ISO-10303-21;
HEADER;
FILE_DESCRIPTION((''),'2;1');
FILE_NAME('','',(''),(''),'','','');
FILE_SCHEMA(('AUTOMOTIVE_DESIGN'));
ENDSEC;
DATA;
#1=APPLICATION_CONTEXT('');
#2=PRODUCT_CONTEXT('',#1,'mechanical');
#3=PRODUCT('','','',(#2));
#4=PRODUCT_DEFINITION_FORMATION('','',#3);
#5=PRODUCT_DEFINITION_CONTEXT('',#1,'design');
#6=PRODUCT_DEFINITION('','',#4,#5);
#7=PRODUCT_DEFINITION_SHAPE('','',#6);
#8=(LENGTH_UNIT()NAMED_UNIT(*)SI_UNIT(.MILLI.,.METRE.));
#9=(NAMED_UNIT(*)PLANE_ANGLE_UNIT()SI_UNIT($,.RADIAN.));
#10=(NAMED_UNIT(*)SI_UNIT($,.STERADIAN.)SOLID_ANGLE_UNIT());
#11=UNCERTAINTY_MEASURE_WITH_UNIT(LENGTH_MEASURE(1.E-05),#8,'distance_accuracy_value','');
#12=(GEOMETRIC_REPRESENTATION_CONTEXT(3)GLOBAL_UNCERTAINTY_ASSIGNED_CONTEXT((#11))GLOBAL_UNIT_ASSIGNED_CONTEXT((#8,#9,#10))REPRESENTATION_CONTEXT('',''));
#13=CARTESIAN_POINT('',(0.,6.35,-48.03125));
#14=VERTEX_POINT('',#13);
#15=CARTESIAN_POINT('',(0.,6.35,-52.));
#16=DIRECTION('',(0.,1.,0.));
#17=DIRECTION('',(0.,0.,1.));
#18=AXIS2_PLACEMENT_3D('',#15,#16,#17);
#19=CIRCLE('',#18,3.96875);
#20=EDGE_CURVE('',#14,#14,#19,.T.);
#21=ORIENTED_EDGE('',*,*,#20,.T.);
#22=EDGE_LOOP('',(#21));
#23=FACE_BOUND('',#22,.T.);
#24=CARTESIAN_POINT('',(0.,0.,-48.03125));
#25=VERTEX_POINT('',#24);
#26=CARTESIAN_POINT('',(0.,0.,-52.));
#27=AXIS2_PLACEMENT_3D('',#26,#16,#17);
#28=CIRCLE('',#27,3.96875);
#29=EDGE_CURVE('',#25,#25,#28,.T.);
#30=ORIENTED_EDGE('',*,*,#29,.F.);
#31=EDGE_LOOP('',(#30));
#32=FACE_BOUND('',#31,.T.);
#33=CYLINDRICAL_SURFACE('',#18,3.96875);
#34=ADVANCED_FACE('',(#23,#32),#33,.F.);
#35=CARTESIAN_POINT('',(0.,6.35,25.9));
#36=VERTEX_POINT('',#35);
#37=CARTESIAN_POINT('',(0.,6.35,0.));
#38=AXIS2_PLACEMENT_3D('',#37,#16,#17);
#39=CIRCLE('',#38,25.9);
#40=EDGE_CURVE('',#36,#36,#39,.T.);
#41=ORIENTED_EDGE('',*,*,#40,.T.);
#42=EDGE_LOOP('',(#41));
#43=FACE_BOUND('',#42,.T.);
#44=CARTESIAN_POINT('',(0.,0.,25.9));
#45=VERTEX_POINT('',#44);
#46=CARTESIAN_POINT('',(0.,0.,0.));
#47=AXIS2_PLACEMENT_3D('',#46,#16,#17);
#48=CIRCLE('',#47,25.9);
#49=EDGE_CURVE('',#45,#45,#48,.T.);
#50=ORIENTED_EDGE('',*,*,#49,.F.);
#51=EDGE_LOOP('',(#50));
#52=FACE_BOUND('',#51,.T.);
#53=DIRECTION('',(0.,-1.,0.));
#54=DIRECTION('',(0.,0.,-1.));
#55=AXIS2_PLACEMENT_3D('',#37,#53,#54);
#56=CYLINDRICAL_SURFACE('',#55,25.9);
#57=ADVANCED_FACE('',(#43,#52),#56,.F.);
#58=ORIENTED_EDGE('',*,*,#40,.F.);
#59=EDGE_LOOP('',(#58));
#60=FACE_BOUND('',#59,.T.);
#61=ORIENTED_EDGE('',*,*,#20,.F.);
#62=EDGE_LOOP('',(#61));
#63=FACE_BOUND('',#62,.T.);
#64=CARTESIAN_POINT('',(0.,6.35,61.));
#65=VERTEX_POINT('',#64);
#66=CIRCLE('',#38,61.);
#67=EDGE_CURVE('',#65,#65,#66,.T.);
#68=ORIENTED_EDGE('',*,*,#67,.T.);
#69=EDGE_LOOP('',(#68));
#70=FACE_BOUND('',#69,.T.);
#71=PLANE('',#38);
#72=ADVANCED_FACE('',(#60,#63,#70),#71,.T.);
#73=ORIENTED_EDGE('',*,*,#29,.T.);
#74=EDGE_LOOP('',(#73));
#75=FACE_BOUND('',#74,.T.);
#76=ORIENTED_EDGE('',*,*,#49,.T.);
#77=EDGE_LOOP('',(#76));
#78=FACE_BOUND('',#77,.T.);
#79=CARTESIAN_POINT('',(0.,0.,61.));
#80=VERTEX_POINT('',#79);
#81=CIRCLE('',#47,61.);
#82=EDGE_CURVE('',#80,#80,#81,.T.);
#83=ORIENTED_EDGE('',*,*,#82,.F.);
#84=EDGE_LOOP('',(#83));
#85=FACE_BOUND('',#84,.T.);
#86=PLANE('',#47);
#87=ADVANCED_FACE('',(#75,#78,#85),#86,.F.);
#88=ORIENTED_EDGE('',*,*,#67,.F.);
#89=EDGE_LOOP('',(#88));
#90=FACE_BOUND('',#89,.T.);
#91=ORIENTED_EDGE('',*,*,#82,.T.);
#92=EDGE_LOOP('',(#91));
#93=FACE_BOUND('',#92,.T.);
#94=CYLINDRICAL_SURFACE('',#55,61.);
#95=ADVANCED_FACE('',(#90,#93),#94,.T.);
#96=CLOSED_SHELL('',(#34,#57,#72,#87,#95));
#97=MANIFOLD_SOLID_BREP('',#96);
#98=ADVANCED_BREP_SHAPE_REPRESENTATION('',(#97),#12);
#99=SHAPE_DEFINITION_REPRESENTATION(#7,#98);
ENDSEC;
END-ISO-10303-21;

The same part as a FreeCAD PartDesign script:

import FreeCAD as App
import Part
import Sketcher

doc = App.newDocument("Part")
body = doc.addObject("PartDesign::Body", "Body")

sketch1 = body.newObject("Sketcher::SketchObject", "Sketch")
sketch1.AttachmentSupport = (doc.getObject("XZ_Plane"), [""])
sketch1.MapMode = "FlatFace"
sketch1.addGeometry(Part.Circle(App.Vector(0, 0, 0), App.Vector(0, 0, 1), 61), False)
sketch1.addGeometry(Part.Circle(App.Vector(0, 0, 0), App.Vector(0, 0, 1), 26), False)
sketch1.addConstraint(Sketcher.Constraint("Coincident", 0, 3, -1, 1))
sketch1.addConstraint(Sketcher.Constraint("Coincident", 1, 3, -1, 1))
sketch1.addConstraint(Sketcher.Constraint("Diameter", 0, 122.0))
sketch1.addConstraint(Sketcher.Constraint("Diameter", 1, 51.8))
pad1 = body.newObject("PartDesign::Pad", "Pad")
pad1.Profile = sketch1
pad1.Length = 6.35
pad1.Reversed = True

sketch2 = body.newObject("Sketcher::SketchObject", "Sketch001")
sketch2.AttachmentSupport = (doc.getObject("XZ_Plane"), [""])
sketch2.MapMode = "FlatFace"
sketch2.AttachmentOffset = App.Placement(App.Vector(0, 0, -6.35), App.Rotation())
sketch2.addGeometry(Part.Circle(App.Vector(0, -52, 0), App.Vector(0, 0, 1), 4), False)
sketch2.addConstraint(Sketcher.Constraint("PointOnObject", 0, 3, -2))
sketch2.addConstraint(Sketcher.Constraint("DistanceY", 0, 3, -1, 1, 52.0))
sketch2.addConstraint(Sketcher.Constraint("Diameter", 0, 7.9375))
doc.recompute()
hole = body.newObject("PartDesign::Hole", "Hole")
hole.Profile = sketch2
hole.ThreadType = "None"
hole.Diameter = 7.9375
hole.DepthType = "ThroughAll"
hole.Reversed = True

doc.recompute()
